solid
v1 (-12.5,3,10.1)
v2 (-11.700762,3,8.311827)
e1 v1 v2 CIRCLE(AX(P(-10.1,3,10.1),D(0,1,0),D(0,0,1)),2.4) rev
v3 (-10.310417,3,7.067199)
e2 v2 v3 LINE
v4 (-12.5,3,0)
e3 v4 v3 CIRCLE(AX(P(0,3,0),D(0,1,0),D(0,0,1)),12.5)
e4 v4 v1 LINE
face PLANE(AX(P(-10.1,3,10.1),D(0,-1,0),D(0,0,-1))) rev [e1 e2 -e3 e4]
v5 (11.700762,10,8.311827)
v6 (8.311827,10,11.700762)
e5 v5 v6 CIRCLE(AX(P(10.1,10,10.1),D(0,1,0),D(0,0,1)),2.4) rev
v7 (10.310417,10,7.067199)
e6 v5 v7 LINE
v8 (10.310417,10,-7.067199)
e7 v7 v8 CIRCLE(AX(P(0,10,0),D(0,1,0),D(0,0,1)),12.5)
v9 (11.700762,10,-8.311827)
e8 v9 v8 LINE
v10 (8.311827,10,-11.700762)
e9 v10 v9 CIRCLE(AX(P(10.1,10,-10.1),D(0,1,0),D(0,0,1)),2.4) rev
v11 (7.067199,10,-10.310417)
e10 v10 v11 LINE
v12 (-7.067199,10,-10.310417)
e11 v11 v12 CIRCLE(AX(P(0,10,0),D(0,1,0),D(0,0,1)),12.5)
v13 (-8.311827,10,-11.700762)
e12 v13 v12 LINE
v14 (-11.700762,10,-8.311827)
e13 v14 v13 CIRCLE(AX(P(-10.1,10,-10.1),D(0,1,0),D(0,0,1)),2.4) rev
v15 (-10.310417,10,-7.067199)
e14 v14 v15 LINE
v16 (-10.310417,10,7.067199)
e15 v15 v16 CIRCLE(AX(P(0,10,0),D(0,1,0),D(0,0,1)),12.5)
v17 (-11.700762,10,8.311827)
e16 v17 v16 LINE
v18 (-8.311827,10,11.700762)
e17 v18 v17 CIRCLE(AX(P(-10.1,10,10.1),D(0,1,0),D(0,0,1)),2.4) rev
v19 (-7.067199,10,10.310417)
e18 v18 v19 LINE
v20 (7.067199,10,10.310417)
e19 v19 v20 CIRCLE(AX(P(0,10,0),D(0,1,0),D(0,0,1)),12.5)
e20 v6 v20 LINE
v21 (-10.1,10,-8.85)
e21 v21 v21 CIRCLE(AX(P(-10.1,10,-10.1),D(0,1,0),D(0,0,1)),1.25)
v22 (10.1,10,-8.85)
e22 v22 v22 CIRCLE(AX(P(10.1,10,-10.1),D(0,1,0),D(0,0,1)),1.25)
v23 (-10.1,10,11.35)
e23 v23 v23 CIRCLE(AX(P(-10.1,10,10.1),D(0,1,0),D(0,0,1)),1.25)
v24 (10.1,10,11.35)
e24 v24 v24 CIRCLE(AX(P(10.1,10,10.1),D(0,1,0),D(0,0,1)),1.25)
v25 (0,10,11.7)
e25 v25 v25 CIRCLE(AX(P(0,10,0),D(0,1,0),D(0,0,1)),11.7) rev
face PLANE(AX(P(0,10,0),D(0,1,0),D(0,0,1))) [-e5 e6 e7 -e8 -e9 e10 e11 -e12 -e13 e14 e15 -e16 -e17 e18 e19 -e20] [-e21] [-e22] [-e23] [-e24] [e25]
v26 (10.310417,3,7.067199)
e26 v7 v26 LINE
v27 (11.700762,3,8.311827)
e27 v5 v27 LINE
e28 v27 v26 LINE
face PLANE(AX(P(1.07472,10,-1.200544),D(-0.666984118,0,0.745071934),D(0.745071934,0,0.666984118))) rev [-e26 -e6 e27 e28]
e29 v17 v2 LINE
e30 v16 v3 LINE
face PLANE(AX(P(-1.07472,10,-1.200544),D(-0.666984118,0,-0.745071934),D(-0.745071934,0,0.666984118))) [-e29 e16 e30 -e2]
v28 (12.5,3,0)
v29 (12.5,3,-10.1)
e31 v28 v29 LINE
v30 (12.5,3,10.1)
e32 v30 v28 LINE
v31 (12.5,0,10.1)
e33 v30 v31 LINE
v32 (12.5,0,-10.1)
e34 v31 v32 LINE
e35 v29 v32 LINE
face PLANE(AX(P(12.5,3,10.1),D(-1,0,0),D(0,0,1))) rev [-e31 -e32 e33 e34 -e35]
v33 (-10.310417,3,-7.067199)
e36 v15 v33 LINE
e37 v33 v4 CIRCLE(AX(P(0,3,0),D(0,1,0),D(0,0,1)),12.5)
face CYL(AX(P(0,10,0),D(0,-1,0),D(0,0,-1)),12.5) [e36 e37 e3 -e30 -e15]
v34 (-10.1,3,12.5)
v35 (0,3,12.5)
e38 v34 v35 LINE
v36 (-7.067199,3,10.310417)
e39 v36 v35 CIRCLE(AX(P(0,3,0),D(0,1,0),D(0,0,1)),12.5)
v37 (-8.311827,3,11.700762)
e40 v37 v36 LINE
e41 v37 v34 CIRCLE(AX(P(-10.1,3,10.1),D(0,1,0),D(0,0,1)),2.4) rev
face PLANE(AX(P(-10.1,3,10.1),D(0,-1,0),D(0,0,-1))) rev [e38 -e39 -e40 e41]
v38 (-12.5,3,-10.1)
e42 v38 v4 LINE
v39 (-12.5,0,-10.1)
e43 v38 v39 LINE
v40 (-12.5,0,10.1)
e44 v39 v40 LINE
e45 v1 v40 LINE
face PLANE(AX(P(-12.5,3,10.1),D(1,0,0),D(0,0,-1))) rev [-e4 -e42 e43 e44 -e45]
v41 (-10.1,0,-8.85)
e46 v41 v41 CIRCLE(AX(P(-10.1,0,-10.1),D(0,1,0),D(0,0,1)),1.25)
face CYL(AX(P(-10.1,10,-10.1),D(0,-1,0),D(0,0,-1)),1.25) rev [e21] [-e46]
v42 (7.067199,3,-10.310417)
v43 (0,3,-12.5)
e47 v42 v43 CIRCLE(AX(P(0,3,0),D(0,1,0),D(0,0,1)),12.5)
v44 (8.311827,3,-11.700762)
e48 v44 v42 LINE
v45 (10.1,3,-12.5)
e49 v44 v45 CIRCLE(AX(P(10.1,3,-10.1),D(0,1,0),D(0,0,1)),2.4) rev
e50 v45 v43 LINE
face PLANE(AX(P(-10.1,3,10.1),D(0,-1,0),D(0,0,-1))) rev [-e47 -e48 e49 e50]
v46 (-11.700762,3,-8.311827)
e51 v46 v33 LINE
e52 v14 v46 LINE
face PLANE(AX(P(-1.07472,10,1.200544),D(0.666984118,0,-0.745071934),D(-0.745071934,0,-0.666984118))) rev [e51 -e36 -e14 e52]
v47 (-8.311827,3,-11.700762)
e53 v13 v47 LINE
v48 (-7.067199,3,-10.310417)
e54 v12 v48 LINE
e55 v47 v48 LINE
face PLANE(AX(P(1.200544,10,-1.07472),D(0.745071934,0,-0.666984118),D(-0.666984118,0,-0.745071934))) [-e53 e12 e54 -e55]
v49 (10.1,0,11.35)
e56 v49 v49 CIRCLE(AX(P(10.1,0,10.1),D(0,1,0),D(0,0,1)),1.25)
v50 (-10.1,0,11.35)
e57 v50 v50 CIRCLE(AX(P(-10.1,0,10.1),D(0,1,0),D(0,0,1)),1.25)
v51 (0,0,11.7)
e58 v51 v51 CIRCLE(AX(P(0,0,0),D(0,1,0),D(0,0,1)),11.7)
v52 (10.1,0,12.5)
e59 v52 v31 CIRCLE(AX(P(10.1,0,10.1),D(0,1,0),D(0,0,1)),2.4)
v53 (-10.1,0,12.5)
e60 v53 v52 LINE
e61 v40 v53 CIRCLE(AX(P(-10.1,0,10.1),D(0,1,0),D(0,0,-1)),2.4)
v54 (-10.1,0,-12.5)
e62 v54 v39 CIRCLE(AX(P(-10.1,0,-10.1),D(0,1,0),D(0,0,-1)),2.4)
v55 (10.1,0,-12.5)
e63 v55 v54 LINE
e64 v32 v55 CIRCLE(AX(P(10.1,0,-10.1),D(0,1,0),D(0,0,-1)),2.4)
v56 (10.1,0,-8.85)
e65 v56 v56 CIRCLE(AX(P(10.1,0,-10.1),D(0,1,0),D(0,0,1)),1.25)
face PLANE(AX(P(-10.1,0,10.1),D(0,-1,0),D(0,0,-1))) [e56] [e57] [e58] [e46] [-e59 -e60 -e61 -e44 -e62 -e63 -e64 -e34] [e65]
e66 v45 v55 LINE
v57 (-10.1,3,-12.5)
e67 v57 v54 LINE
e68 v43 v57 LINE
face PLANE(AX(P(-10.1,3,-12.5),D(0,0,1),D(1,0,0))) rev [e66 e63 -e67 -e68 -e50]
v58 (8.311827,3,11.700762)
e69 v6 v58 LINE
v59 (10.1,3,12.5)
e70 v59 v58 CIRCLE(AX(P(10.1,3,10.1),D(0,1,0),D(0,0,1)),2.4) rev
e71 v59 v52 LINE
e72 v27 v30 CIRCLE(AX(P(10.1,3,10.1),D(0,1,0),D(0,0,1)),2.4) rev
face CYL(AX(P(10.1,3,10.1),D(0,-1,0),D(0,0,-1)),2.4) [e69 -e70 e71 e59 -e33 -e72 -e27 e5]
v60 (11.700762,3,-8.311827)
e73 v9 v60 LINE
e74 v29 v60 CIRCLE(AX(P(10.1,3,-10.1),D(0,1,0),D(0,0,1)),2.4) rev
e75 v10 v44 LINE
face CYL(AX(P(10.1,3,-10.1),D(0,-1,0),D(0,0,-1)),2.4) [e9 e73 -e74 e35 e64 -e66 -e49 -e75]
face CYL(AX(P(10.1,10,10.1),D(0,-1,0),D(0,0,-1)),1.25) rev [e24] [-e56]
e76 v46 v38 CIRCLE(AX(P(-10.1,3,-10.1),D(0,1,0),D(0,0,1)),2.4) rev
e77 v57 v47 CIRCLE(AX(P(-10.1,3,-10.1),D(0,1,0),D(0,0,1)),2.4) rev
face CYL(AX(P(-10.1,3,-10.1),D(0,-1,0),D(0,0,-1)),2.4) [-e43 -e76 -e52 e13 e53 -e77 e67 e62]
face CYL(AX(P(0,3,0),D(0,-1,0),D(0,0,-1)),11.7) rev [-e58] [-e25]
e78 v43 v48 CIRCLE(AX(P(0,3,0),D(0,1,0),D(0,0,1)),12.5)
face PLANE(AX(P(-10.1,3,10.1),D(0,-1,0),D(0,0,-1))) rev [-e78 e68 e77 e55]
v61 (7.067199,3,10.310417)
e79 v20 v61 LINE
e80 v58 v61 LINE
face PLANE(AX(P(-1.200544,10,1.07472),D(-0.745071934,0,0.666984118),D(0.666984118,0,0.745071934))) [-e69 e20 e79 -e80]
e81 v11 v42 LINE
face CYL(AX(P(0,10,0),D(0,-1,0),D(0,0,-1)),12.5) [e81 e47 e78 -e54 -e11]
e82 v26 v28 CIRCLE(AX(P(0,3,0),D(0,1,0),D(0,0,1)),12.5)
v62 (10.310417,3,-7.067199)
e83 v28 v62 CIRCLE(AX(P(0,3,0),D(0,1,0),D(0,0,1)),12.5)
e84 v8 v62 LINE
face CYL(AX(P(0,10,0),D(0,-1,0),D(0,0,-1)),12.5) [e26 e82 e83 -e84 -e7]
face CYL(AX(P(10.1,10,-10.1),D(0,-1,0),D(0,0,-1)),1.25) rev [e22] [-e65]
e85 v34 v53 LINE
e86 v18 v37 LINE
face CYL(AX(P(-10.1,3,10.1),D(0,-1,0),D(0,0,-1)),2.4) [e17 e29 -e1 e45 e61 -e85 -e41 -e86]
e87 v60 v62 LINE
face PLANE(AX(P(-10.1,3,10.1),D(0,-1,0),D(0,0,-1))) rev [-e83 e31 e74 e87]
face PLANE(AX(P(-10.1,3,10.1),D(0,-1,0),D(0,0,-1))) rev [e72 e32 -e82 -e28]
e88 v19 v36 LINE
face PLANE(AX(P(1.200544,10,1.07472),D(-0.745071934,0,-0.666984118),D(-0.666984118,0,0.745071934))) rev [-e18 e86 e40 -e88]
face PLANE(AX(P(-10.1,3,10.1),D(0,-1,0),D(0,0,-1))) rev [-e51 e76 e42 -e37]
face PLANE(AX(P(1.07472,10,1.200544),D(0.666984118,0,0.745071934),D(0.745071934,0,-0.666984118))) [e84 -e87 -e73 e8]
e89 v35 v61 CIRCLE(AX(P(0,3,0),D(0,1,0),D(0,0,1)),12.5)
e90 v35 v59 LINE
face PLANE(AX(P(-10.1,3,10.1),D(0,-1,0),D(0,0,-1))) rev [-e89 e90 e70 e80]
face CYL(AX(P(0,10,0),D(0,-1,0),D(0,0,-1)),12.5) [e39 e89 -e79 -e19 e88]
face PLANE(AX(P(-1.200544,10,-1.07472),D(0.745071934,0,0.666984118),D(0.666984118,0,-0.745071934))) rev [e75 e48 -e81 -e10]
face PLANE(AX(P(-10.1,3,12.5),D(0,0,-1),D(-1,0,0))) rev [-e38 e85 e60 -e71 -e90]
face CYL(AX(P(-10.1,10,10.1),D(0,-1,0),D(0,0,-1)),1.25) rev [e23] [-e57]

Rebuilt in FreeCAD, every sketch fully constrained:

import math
import FreeCAD as App
import Part
import Sketcher
from FreeCAD import Vector
Q = App.Units.Quantity

doc = App.newDocument("Part")
body = doc.addObject("PartDesign::Body", "Body")

# Sketch on XZ plane
sketch1 = body.newObject("Sketcher::SketchObject", "Sketch")
sketch1.AttachmentSupport = (doc.getObject("XZ_Plane"), [""])
sketch1.MapMode = "FlatFace"
sketch1.addGeometry([
    Part.LineSegment(Vector(-10.1, 12.5, 0), Vector(10.1, 12.5, 0)),  # 0
    Part.ArcOfCircle(Part.Circle(Vector(10.1, 10.1, 0), Vector(0, 0, 1), 2.4), math.radians(0), math.radians(90)),  # 1
    Part.LineSegment(Vector(12.5, 10.1, 0), Vector(12.5, -10.1, 0)),  # 2
    Part.ArcOfCircle(Part.Circle(Vector(10.1, -10.1, 0), Vector(0, 0, 1), 2.4), math.radians(-90), math.radians(0)),  # 3
    Part.LineSegment(Vector(10.1, -12.5, 0), Vector(-10.1, -12.5, 0)),  # 4
    Part.ArcOfCircle(Part.Circle(Vector(-10.1, -10.1, 0), Vector(0, 0, 1), 2.4), math.radians(180), math.radians(270)),  # 5
    Part.LineSegment(Vector(-12.5, -10.1, 0), Vector(-12.5, 10.1, 0)),  # 6
    Part.ArcOfCircle(Part.Circle(Vector(-10.1, 10.1, 0), Vector(0, 0, 1), 2.4), math.radians(90), math.radians(180)),  # 7
    Part.Circle(Vector(0, 0, 0), Vector(0, 0, 1), 11.7),  # 8
], False)
sketch1.addConstraint([
    Sketcher.Constraint("Tangent", 0, 2, 1, 2),
    Sketcher.Constraint("Tangent", 1, 1, 2, 1),
    Sketcher.Constraint("Tangent", 2, 2, 3, 2),
    Sketcher.Constraint("Tangent", 3, 1, 4, 1),
    Sketcher.Constraint("Tangent", 4, 2, 5, 2),
    Sketcher.Constraint("Tangent", 5, 1, 6, 1),
    Sketcher.Constraint("Tangent", 6, 2, 7, 2),
    Sketcher.Constraint("Tangent", 7, 1, 0, 1),
    Sketcher.Constraint("Horizontal", 0),
    Sketcher.Constraint("Vertical", 2),
    Sketcher.Constraint("Horizontal", 4),
    Sketcher.Constraint("Vertical", 6),
    Sketcher.Constraint("Coincident", 8, 3, -1, 1),
    Sketcher.Constraint("Equal", 1, 3),
    Sketcher.Constraint("Equal", 3, 5),
    Sketcher.Constraint("Equal", 5, 7),
    Sketcher.Constraint("Symmetric", 1, 3, 5, 3, -1, 1),
    Sketcher.Constraint("Equal", 4, 2),
    Sketcher.Constraint("Diameter", 8, Q("23.4 mm")),
    Sketcher.Constraint("Radius", 1, Q("2.4 mm")),
    Sketcher.Constraint("DistanceX", 0, 1, 0, 2, Q("20.2 mm")),
])
pad1 = body.newObject("PartDesign::Pad", "Pad")
pad1.Profile = sketch1
pad1.Length = 3
pad1.Reversed = True

# Sketch on XZ plane
sketch2 = body.newObject("Sketcher::SketchObject", "Sketch001")
sketch2.AttachmentSupport = (doc.getObject("XZ_Plane"), [""])
sketch2.MapMode = "FlatFace"
sketch2.AttachmentOffset = App.Placement(Vector(0, 0, -3), App.Rotation())
sketch2.addGeometry([
    Part.ArcOfCircle(Part.Circle(Vector(0, 0, 0), Vector(0, 0, 1), 12.5), math.radians(56), math.radians(124)),  # 0
    Part.LineSegment(Vector(7.1, 10.3, 0), Vector(8.3, 11.7, 0)),  # 1
    Part.ArcOfCircle(Part.Circle(Vector(10.1, 10.1, 0), Vector(0, 0, 1), 2.4), math.radians(90), math.radians(138)),  # 2
    Part.ArcOfCircle(Part.Circle(Vector(10.1, 10.1, 0), Vector(0, 0, 1), 2.4), math.radians(0), math.radians(90)),  # 3
    Part.ArcOfCircle(Part.Circle(Vector(10.1, 10.1, 0), Vector(0, 0, 1), 2.4), math.radians(-48), math.radians(0)),  # 4
    Part.LineSegment(Vector(11.7, 8.3, 0), Vector(10.3, 7.1, 0)),  # 5
    Part.ArcOfCircle(Part.Circle(Vector(0, 0, 0), Vector(0, 0, 1), 12.5), math.radians(-34), math.radians(34)),  # 6
    Part.LineSegment(Vector(10.3, -7.1, 0), Vector(11.7, -8.3, 0)),  # 7
    Part.ArcOfCircle(Part.Circle(Vector(10.1, -10.1, 0), Vector(0, 0, 1), 2.4), math.radians(0), math.radians(48)),  # 8
    Part.ArcOfCircle(Part.Circle(Vector(10.1, -10.1, 0), Vector(0, 0, 1), 2.4), math.radians(-90), math.radians(0)),  # 9
    Part.ArcOfCircle(Part.Circle(Vector(10.1, -10.1, 0), Vector(0, 0, 1), 2.4), math.radians(-138), math.radians(-90)),  # 10
    Part.LineSegment(Vector(8.3, -11.7, 0), Vector(7.1, -10.3, 0)),  # 11
    Part.ArcOfCircle(Part.Circle(Vector(0, 0, 0), Vector(0, 0, 1), 12.5), math.radians(-124), math.radians(-56)),  # 12
    Part.LineSegment(Vector(-7.1, -10.3, 0), Vector(-8.3, -11.7, 0)),  # 13
    Part.ArcOfCircle(Part.Circle(Vector(-10.1, -10.1, 0), Vector(0, 0, 1), 2.4), math.radians(-90), math.radians(-42)),  # 14
    Part.ArcOfCircle(Part.Circle(Vector(-10.1, -10.1, 0), Vector(0, 0, 1), 2.4), math.radians(180), math.radians(270)),  # 15
    Part.ArcOfCircle(Part.Circle(Vector(-10.1, -10.1, 0), Vector(0, 0, 1), 2.4), math.radians(132), math.radians(180)),  # 16
    Part.LineSegment(Vector(-11.7, -8.3, 0), Vector(-10.3, -7.1, 0)),  # 17
    Part.ArcOfCircle(Part.Circle(Vector(0, 0, 0), Vector(0, 0, 1), 12.5), math.radians(146), math.radians(214)),  # 18
    Part.LineSegment(Vector(-10.3, 7.1, 0), Vector(-11.7, 8.3, 0)),  # 19
    Part.ArcOfCircle(Part.Circle(Vector(-10.1, 10.1, 0), Vector(0, 0, 1), 2.4), math.radians(-180), math.radians(-132)),  # 20
    Part.ArcOfCircle(Part.Circle(Vector(-10.1, 10.1, 0), Vector(0, 0, 1), 2.4), math.radians(90), math.radians(180)),  # 21
    Part.ArcOfCircle(Part.Circle(Vector(-10.1, 10.1, 0), Vector(0, 0, 1), 2.4), math.radians(42), math.radians(90)),  # 22
    Part.LineSegment(Vector(-8.3, 11.7, 0), Vector(-7.1, 10.3, 0)),  # 23
    Part.Circle(Vector(-10.1, 10.1, 0), Vector(0, 0, 1), 1.2),  # 24
    Part.Circle(Vector(10.1, 10.1, 0), Vector(0, 0, 1), 1.2),  # 25
    Part.Circle(Vector(-10.1, -10.1, 0), Vector(0, 0, 1), 1.2),  # 26
    Part.Circle(Vector(0, 0, 0), Vector(0, 0, 1), 11.7),  # 27
    Part.Circle(Vector(10.1, -10.1, 0), Vector(0, 0, 1), 1.2),  # 28
], False)
sketch2.addConstraint([
    Sketcher.Constraint("Coincident", 0, 1, 1, 1),
    Sketcher.Constraint("Tangent", 1, 2, 2, 2),
    Sketcher.Constraint("Tangent", 2, 1, 3, 2),
    Sketcher.Constraint("Tangent", 3, 1, 4, 2),
    Sketcher.Constraint("Tangent", 4, 1, 5, 1),
    Sketcher.Constraint("Coincident", 5, 2, 6, 2),
    Sketcher.Constraint("Coincident", 6, 1, 7, 1),
    Sketcher.Constraint("Tangent", 7, 2, 8, 2),
    Sketcher.Constraint("Tangent", 8, 1, 9, 2),
    Sketcher.Constraint("Tangent", 9, 1, 10, 2),
    Sketcher.Constraint("Tangent", 10, 1, 11, 1),
    Sketcher.Constraint("Coincident", 11, 2, 12, 2),
    Sketcher.Constraint("Coincident", 12, 1, 13, 1),
    Sketcher.Constraint("Tangent", 13, 2, 14, 2),
    Sketcher.Constraint("Tangent", 14, 1, 15, 2),
    Sketcher.Constraint("Tangent", 15, 1, 16, 2),
    Sketcher.Constraint("Tangent", 16, 1, 17, 1),
    Sketcher.Constraint("Coincident", 17, 2, 18, 2),
    Sketcher.Constraint("Coincident", 18, 1, 19, 1),
    Sketcher.Constraint("Tangent", 19, 2, 20, 2),
    Sketcher.Constraint("Tangent", 20, 1, 21, 2),
    Sketcher.Constraint("Tangent", 21, 1, 22, 2),
    Sketcher.Constraint("Tangent", 22, 1, 23, 1),
    Sketcher.Constraint("Coincident", 23, 2, 0, 2),
    Sketcher.Constraint("Coincident", 0, 3, -1, 1),
    Sketcher.Constraint("Coincident", 6, 3, -1, 1),
    Sketcher.Constraint("Coincident", 12, 3, -1, 1),
    Sketcher.Constraint("Coincident", 18, 3, -1, 1),
    Sketcher.Constraint("Coincident", 27, 3, -1, 1),
    Sketcher.Constraint("Coincident", 4, 3, 2, 3),
    Sketcher.Constraint("Coincident", 10, 3, 8, 3),
    Sketcher.Constraint("Coincident", 16, 3, 14, 3),
    Sketcher.Constraint("Coincident", 22, 3, 20, 3),
    Sketcher.Constraint("Coincident", 24, 3, 20, 3),
    Sketcher.Constraint("Coincident", 25, 3, 2, 3),
    Sketcher.Constraint("Coincident", 26, 3, 14, 3),
    Sketcher.Constraint("Coincident", 28, 3, 8, 3),
    Sketcher.Constraint("Equal", 0, 6),
    Sketcher.Constraint("Equal", 4, 8),
    Sketcher.Constraint("Equal", 6, 12),
    Sketcher.Constraint("Equal", 10, 14),
    Sketcher.Constraint("Equal", 12, 18),
    Sketcher.Constraint("Equal", 16, 20),
    Sketcher.Constraint("Equal", 24, 25),
    Sketcher.Constraint("Equal", 25, 26),
    Sketcher.Constraint("Equal", 26, 28),
    Sketcher.Constraint("Symmetric", 2, 3, 14, 3, -1, 1),
    Sketcher.Constraint("Symmetric", 8, 3, 20, 3, -1, 1),
    Sketcher.Constraint("Symmetric", 8, 3, 14, 3, -2),
    Sketcher.Constraint("Perpendicular", 1, 7),
    Sketcher.Constraint("Perpendicular", 5, 11),
    Sketcher.Constraint("Perpendicular", 7, 13),
    Sketcher.Constraint("Perpendicular", 11, 17),
    Sketcher.Constraint("Perpendicular", 13, 19),
    Sketcher.Constraint("Perpendicular", 17, 23),
    Sketcher.Constraint("Horizontal", 25, 3, 3, 1),
    Sketcher.Constraint("Horizontal", 28, 3, 8, 1),
    Sketcher.Constraint("Horizontal", 11, 2, 12, 1),
    Sketcher.Constraint("Horizontal", 8, 1, 15, 1),
    Sketcher.Constraint("Horizontal", 3, 1, 20, 1),
    Sketcher.Constraint("Vertical", 28, 3, 2, 1),
    Sketcher.Constraint("Vertical", 2, 1, 9, 1),
    Sketcher.Constraint("Vertical", 26, 3, 14, 1),
    Sketcher.Constraint("Vertical", 14, 1, 21, 1),
    Sketcher.Constraint("Equal", 1, 5),
    Sketcher.Constraint("Diameter", 24, Q("2.5 mm")),
    Sketcher.Constraint("Diameter", 27, Q("23.4 mm")),
    Sketcher.Constraint("Radius", 0, Q("12.5 mm")),
    Sketcher.Constraint("Radius", 2, Q("2.4 mm")),
    Sketcher.Constraint("DistanceX", -1, 1, 2, 3, Q("10.1 mm")),
    Sketcher.Constraint("DistanceX", -1, 1, 0, 1, Q("7.067199 mm")),
])
pad2 = body.newObject("PartDesign::Pad", "Pad001")
pad2.Profile = sketch2
pad2.Length = 7
pad2.Reversed = True

# Sketch on XZ plane
sketch3 = body.newObject("Sketcher::SketchObject", "Sketch002")
sketch3.AttachmentSupport = (doc.getObject("XZ_Plane"), [""])
sketch3.MapMode = "FlatFace"
sketch3.AttachmentOffset = App.Placement(Vector(0, 0, -3), App.Rotation())
sketch3.addGeometry([
    Part.Circle(Vector(-10.1, -10.1, 0), Vector(0, 0, 1), 1.2),
    Part.Circle(Vector(10.1, -10.1, 0), Vector(0, 0, 1), 1.2),
    Part.Circle(Vector(10.1, 10.1, 0), Vector(0, 0, 1), 1.2),
    Part.Circle(Vector(-10.1, 10.1, 0), Vector(0, 0, 1), 1.2),
], False)
sketch3.addConstraint([
    Sketcher.Constraint("Equal", 0, 1),
    Sketcher.Constraint("Equal", 1, 2),
    Sketcher.Constraint("Equal", 2, 3),
    Sketcher.Constraint("Symmetric", 0, 3, 2, 3, -1, 1),
    Sketcher.Constraint("Symmetric", 1, 3, 3, 3, -1, 1),
    Sketcher.Constraint("Symmetric", 0, 3, 1, 3, -2),
    Sketcher.Constraint("Diameter", 0, Q("2.5 mm")),
    Sketcher.Constraint("DistanceX", 0, 3, -1, 1, Q("10.1 mm")),
    Sketcher.Constraint("DistanceY", 0, 3, -1, 1, Q("10.1 mm")),
])
pocket1 = body.newObject("PartDesign::Pocket", "Pocket")
pocket1.Profile = sketch3
pocket1.Type = "ThroughAll"
pocket1.Reversed = True

doc.recompute()
